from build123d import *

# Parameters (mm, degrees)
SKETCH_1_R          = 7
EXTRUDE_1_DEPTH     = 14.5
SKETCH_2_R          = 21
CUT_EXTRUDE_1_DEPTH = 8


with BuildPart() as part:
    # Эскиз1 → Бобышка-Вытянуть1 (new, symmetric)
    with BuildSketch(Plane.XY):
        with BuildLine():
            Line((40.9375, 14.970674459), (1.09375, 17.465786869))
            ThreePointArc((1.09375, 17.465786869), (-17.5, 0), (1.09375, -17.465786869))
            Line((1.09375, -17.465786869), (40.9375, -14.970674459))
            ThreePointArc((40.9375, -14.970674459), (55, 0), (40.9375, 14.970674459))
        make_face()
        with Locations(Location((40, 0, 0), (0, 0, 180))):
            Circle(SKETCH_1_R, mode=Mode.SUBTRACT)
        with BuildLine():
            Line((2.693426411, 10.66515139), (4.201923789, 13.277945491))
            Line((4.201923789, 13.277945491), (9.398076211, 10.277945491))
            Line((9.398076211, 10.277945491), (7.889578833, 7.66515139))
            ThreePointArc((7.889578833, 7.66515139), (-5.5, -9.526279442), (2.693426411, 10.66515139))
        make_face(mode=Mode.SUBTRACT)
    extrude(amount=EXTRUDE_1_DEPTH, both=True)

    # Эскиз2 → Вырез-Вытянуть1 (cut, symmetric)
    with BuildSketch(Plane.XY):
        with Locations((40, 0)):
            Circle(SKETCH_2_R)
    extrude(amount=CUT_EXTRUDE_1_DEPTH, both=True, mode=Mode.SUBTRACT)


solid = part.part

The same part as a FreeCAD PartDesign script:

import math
import FreeCAD as App
import Part
import Sketcher
Q = App.Units.Quantity

doc = App.newDocument("Part")
body = doc.addObject("PartDesign::Body", "Body")

# Sketch on XY plane
sketch1 = body.newObject("Sketcher::SketchObject", "Sketch")
sketch1.AttachmentSupport = (doc.getObject("XY_Plane"), [""])
sketch1.MapMode = "FlatFace"
sketch1.addGeometry([
    Part.LineSegment(App.Vector(40.9, 15, 0), App.Vector(1.1, 17.5, 0)),  # 0
    Part.ArcOfCircle(Part.Circle(App.Vector(0, 0, 0), App.Vector(0, 0, 1), 17.5), math.radians(86), math.radians(274)),  # 1
    Part.LineSegment(App.Vector(1.1, -17.5, 0), App.Vector(40.9, -15, 0)),  # 2
    Part.ArcOfCircle(Part.Circle(App.Vector(40, 0, 0), App.Vector(0, 0, 1), 15), math.radians(-86), math.radians(86)),  # 3
    Part.Circle(App.Vector(40, 0, 0), App.Vector(0, 0, 1), 7),  # 4
    Part.ArcOfCircle(Part.Circle(App.Vector(0, 0, 0), App.Vector(0, 0, 1), 11), math.radians(76), math.radians(404)),  # 5
    Part.LineSegment(App.Vector(2.7, 10.7, 0), App.Vector(4.2, 13.3, 0)),  # 6
    Part.LineSegment(App.Vector(4.2, 13.3, 0), App.Vector(9.4, 10.3, 0)),  # 7
    Part.LineSegment(App.Vector(9.4, 10.3, 0), App.Vector(7.9, 7.7, 0)),  # 8
], False)
sketch1.addConstraint([
    Sketcher.Constraint("Tangent", 0, 2, 1, 1),
    Sketcher.Constraint("Tangent", 1, 2, 2, 1),
    Sketcher.Constraint("Tangent", 2, 2, 3, 1),
    Sketcher.Constraint("Tangent", 3, 2, 0, 1),
    Sketcher.Constraint("Coincident", 5, 1, 6, 1),
    Sketcher.Constraint("Coincident", 6, 2, 7, 1),
    Sketcher.Constraint("Coincident", 7, 2, 8, 1),
    Sketcher.Constraint("Coincident", 8, 2, 5, 2),
    Sketcher.Constraint("Coincident", 1, 3, -1, 1),
    Sketcher.Constraint("Coincident", 5, 3, -1, 1),
    Sketcher.Constraint("Coincident", 4, 3, 3, 3),
    Sketcher.Constraint("PointOnObject", 3, 3, -1),
    Sketcher.Constraint("Perpendicular", 6, 7),
    Sketcher.Constraint("Perpendicular", 7, 8),
    Sketcher.Constraint("Equal", 6, 8),
    Sketcher.Constraint("Diameter", 4, Q("14 mm")),
    Sketcher.Constraint("Radius", 3, Q("15 mm")),
    Sketcher.Constraint("Radius", 5, Q("11 mm")),
    Sketcher.Constraint("Radius", 1, Q("17.5 mm")),
    Sketcher.Constraint("Angle", 6, Q("60 deg")),
    Sketcher.Constraint("Distance", 7, Q("6 mm")),
    Sketcher.Constraint("DistanceX", -1, 1, 3, 3, Q("40 mm")),
    Sketcher.Constraint("DistanceY", 6, 2, 0, 2, Q("4.187841 mm")),
])
pad1 = body.newObject("PartDesign::Pad", "Pad")
pad1.Profile = sketch1
pad1.Length = 29
pad1.Midplane = True

# Sketch on XY plane
sketch2 = body.newObject("Sketcher::SketchObject", "Sketch001")
sketch2.AttachmentSupport = (doc.getObject("XY_Plane"), [""])
sketch2.MapMode = "FlatFace"
sketch2.addGeometry(Part.Circle(App.Vector(40, 0, 0), App.Vector(0, 0, 1), 21), False)
sketch2.addConstraint([
    Sketcher.Constraint("PointOnObject", 0, 3, -1),
    Sketcher.Constraint("Diameter", 0, Q("42 mm")),
    Sketcher.Constraint("DistanceX", -1, 1, 0, 3, Q("40 mm")),
])
pocket1 = body.newObject("PartDesign::Pocket", "Pocket")
pocket1.Profile = sketch2
pocket1.Length = 16
pocket1.Midplane = True

doc.recompute()
